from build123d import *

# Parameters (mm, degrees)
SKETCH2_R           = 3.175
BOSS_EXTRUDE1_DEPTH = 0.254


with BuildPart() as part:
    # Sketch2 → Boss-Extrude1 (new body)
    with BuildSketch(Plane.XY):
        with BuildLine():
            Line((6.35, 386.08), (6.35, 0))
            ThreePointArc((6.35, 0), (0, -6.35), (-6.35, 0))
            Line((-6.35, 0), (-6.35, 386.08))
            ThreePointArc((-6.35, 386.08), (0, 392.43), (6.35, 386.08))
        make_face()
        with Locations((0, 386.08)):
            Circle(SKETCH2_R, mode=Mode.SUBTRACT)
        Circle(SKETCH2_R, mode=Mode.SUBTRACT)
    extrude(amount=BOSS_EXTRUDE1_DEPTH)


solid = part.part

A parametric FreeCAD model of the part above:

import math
import FreeCAD as App
import Part
import Sketcher
Q = App.Units.Quantity

doc = App.newDocument("Part")
body = doc.addObject("PartDesign::Body", "Body")

sketch1 = body.newObject("Sketcher::SketchObject", "Sketch")
sketch1.AttachmentSupport = (doc.getObject("XY_Plane"), [""])
sketch1.MapMode = "FlatFace"
sketch1.addGeometry(Part.LineSegment(App.Vector(6.3, 0, 0), App.Vector(6.3, 386.1, 0)), False)
sketch1.addGeometry(Part.ArcOfCircle(Part.Circle(App.Vector(0, 386.1, 0), App.Vector(0, 0, 1), 6.3), math.radians(0), math.radians(180)), False)
sketch1.addGeometry(Part.LineSegment(App.Vector(-6.3, 386.1, 0), App.Vector(-6.3, 0, 0)), False)
sketch1.addGeometry(Part.ArcOfCircle(Part.Circle(App.Vector(0, 0, 0), App.Vector(0, 0, 1), 6.3), math.radians(180), math.radians(360)), False)
sketch1.addGeometry(Part.Circle(App.Vector(0, 0, 0), App.Vector(0, 0, 1), 3.2), False)
sketch1.addGeometry(Part.Circle(App.Vector(0, 386.1, 0), App.Vector(0, 0, 1), 3.2), False)
sketch1.addConstraint(Sketcher.Constraint("Tangent", 0, 2, 1, 1))
sketch1.addConstraint(Sketcher.Constraint("Tangent", 1, 2, 2, 1))
sketch1.addConstraint(Sketcher.Constraint("Tangent", 2, 2, 3, 1))
sketch1.addConstraint(Sketcher.Constraint("Tangent", 3, 2, 0, 1))
sketch1.addConstraint(Sketcher.Constraint("Vertical", 0))
sketch1.addConstraint(Sketcher.Constraint("Vertical", 2))
sketch1.addConstraint(Sketcher.Constraint("Coincident", 3, 3, -1, 1))
sketch1.addConstraint(Sketcher.Constraint("Coincident", 4, 3, -1, 1))
sketch1.addConstraint(Sketcher.Constraint("Coincident", 5, 3, 1, 3))
sketch1.addConstraint(Sketcher.Constraint("Equal", 4, 5))
sketch1.addConstraint(Sketcher.Constraint("Diameter", 4, Q("0.25 in")))
sketch1.addConstraint(Sketcher.Constraint("Radius", 1, Q("0.25 in")))
sketch1.addConstraint(Sketcher.Constraint("DistanceY", 0, 1, 0, 2, Q("15.2 in")))
pad1 = body.newObject("PartDesign::Pad", "Pad")
pad1.Profile = sketch1
pad1.Length = Q("0.01 in")

doc.recompute()
